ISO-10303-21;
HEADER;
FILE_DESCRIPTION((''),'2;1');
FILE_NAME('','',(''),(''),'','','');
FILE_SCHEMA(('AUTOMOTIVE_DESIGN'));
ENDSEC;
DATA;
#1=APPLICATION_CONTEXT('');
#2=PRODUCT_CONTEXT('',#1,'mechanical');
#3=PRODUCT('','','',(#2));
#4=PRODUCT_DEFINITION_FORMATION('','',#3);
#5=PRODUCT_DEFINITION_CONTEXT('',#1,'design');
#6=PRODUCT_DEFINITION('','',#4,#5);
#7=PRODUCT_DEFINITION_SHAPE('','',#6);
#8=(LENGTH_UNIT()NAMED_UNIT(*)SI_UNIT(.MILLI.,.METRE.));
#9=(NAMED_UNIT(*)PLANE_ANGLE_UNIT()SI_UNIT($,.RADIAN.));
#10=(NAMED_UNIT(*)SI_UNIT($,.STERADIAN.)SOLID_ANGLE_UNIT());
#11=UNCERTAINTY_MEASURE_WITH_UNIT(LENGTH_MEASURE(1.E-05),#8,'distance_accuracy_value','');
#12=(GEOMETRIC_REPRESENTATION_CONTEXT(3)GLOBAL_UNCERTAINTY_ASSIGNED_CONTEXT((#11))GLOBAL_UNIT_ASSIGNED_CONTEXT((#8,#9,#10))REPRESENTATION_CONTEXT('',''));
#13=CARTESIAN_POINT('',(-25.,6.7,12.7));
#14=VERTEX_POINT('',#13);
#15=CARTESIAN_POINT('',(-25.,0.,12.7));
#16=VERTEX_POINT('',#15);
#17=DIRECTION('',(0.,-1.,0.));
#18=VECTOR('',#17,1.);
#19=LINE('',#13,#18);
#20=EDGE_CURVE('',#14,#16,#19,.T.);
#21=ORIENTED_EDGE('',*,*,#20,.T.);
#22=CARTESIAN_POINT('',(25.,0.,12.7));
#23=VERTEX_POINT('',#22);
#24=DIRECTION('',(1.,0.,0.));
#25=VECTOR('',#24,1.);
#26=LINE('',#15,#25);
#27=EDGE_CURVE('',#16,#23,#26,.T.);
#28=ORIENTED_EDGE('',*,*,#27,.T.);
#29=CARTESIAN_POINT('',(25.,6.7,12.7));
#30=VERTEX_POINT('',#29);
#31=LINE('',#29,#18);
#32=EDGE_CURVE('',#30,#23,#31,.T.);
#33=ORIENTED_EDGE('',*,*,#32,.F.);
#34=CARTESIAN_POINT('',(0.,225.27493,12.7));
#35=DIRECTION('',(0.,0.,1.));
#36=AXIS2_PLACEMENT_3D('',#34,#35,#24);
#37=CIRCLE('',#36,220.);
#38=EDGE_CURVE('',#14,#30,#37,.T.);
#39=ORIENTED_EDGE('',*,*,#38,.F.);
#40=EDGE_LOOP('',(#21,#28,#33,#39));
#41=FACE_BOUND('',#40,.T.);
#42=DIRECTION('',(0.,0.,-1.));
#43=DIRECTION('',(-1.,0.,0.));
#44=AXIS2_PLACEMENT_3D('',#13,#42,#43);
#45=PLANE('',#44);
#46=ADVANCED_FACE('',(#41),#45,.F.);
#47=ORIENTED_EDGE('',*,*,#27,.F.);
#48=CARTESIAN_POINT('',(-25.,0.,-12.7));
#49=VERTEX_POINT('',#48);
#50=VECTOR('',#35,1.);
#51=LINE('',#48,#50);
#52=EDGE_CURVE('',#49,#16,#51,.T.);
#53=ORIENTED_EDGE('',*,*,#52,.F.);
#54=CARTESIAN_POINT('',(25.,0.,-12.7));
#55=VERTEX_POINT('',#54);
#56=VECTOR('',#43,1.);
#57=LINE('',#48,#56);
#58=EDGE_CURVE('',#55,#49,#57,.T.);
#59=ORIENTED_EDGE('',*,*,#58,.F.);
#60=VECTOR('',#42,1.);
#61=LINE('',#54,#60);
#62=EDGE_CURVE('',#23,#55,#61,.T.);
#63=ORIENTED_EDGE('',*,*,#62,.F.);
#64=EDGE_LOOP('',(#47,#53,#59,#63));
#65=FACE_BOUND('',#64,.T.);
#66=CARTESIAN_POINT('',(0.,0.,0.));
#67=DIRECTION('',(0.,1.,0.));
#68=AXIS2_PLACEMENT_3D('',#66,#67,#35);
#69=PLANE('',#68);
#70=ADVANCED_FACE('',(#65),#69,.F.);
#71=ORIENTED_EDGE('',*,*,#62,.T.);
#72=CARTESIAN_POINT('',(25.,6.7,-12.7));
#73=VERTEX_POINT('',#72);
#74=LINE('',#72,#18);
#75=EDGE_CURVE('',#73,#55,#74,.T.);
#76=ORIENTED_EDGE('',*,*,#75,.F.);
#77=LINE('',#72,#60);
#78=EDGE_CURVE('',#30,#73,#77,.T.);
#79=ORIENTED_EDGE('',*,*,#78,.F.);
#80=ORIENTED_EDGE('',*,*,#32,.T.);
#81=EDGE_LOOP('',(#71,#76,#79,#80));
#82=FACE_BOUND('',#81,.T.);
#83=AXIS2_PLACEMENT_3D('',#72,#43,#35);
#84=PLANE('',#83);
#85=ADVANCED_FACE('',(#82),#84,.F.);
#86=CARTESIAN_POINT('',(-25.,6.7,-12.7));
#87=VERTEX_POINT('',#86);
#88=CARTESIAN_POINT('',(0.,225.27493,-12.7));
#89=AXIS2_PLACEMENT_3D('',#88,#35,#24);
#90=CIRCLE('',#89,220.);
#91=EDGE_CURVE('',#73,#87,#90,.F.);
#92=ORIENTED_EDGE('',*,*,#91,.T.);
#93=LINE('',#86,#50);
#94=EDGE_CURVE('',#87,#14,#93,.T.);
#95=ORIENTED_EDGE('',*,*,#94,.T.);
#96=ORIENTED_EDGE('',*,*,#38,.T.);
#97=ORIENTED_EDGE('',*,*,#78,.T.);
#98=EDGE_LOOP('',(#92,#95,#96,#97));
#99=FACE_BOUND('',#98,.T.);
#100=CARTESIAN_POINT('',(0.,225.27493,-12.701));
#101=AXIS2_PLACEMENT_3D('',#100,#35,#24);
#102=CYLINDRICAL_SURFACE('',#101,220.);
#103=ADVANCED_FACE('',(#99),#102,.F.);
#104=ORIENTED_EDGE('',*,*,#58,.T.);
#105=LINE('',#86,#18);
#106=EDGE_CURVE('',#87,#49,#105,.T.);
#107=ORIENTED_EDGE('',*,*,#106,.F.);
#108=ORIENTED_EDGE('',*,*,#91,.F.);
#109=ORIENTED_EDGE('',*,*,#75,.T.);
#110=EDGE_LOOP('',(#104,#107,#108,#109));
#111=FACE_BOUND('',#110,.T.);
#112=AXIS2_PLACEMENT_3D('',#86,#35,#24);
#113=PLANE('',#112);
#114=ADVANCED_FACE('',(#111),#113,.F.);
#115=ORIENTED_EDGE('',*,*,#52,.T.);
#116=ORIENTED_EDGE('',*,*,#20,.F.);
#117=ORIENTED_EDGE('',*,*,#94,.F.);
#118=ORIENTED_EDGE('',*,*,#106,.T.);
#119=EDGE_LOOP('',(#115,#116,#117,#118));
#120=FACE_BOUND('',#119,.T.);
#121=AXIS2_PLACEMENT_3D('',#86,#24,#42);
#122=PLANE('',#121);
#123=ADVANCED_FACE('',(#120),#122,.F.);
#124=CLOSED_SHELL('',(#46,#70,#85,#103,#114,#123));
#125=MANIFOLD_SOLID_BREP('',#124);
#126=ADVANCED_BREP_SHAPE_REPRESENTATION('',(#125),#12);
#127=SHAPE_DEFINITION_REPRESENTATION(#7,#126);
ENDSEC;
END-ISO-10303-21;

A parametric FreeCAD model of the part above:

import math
import FreeCAD as App
import Part
import Sketcher

V = App.Vector


def add_polygon(sketch, points):
    """Adds a closed chain of lines whose ends are joined by coincident constraints."""
    first, n = sketch.GeometryCount, len(points)
    for a, b in zip(points, points[1:] + points[:1]):
        sketch.addGeometry(Part.LineSegment(App.Vector(*a, 0), App.Vector(*b, 0)), False)
    for i in range(n):
        sketch.addConstraint(Sketcher.Constraint("Coincident", first + i, 2, first + (i + 1) % n, 1))

doc = App.newDocument("Part")
body = doc.addObject("PartDesign::Body", "Body")

sketch1 = doc.addObject("Sketcher::SketchObject", "Sketch")
body.addObject(sketch1)
sketch1.AttachmentSupport = (doc.XZ_Plane, [""])
sketch1.MapMode = "FlatFace"
add_polygon(sketch1, [(-25, -13), (-25, 13), (25, 13), (25, -13)])
sketch1.addConstraint([
    Sketcher.Constraint("Vertical", 0),
    Sketcher.Constraint("Horizontal", 1),
    Sketcher.Constraint("Vertical", 2),
    Sketcher.Constraint("Horizontal", 3),
    Sketcher.Constraint("Symmetric", 0, 2, 2, 2, -1, 1),
    Sketcher.Constraint("DistanceX", 1, 1, 1, 2, 50.0),
    Sketcher.Constraint("DistanceY", 0, 1, 0, 2, 25.4),
])
pad1 = doc.addObject("PartDesign::Pad", "Pad")
body.addObject(pad1)
pad1.Profile = sketch1
pad1.Length = 6.7
pad1.Reversed = True

sketch2 = doc.addObject("Sketcher::SketchObject", "Sketch001")
body.addObject(sketch2)
sketch2.AttachmentSupport = (doc.XY_Plane, [""])
sketch2.MapMode = "FlatFace"
sketch2.AttachmentOffset = App.Placement(V(0, 0, 12.7), App.Rotation())
sketch2.addGeometry([
    Part.LineSegment(V(25, 7, 0), V(-25, 7, 0)),
    Part.ArcOfCircle(Part.Circle(V(0, 225, 0), V(0, 0, 1), 220), math.radians(-96.52), math.radians(-83.48)),
], False)
sketch2.addConstraint([
    Sketcher.Constraint("Coincident", 0, 1, 1, 2),
    Sketcher.Constraint("Coincident", 1, 1, 0, 2),
    Sketcher.Constraint("Horizontal", 0),
    Sketcher.Constraint("PointOnObject", 1, 3, -2),
    Sketcher.Constraint("Radius", 1, 220.0),
    Sketcher.Constraint("DistanceX", 0, 2, 0, 1, 50.0),
    Sketcher.Constraint("DistanceY", -1, 1, 0, 1, 6.7),
])
pocket1 = doc.addObject("PartDesign::Pocket", "Pocket")
body.addObject(pocket1)
pocket1.Profile = sketch2
pocket1.Type = "UpToFirst"

doc.recompute()
